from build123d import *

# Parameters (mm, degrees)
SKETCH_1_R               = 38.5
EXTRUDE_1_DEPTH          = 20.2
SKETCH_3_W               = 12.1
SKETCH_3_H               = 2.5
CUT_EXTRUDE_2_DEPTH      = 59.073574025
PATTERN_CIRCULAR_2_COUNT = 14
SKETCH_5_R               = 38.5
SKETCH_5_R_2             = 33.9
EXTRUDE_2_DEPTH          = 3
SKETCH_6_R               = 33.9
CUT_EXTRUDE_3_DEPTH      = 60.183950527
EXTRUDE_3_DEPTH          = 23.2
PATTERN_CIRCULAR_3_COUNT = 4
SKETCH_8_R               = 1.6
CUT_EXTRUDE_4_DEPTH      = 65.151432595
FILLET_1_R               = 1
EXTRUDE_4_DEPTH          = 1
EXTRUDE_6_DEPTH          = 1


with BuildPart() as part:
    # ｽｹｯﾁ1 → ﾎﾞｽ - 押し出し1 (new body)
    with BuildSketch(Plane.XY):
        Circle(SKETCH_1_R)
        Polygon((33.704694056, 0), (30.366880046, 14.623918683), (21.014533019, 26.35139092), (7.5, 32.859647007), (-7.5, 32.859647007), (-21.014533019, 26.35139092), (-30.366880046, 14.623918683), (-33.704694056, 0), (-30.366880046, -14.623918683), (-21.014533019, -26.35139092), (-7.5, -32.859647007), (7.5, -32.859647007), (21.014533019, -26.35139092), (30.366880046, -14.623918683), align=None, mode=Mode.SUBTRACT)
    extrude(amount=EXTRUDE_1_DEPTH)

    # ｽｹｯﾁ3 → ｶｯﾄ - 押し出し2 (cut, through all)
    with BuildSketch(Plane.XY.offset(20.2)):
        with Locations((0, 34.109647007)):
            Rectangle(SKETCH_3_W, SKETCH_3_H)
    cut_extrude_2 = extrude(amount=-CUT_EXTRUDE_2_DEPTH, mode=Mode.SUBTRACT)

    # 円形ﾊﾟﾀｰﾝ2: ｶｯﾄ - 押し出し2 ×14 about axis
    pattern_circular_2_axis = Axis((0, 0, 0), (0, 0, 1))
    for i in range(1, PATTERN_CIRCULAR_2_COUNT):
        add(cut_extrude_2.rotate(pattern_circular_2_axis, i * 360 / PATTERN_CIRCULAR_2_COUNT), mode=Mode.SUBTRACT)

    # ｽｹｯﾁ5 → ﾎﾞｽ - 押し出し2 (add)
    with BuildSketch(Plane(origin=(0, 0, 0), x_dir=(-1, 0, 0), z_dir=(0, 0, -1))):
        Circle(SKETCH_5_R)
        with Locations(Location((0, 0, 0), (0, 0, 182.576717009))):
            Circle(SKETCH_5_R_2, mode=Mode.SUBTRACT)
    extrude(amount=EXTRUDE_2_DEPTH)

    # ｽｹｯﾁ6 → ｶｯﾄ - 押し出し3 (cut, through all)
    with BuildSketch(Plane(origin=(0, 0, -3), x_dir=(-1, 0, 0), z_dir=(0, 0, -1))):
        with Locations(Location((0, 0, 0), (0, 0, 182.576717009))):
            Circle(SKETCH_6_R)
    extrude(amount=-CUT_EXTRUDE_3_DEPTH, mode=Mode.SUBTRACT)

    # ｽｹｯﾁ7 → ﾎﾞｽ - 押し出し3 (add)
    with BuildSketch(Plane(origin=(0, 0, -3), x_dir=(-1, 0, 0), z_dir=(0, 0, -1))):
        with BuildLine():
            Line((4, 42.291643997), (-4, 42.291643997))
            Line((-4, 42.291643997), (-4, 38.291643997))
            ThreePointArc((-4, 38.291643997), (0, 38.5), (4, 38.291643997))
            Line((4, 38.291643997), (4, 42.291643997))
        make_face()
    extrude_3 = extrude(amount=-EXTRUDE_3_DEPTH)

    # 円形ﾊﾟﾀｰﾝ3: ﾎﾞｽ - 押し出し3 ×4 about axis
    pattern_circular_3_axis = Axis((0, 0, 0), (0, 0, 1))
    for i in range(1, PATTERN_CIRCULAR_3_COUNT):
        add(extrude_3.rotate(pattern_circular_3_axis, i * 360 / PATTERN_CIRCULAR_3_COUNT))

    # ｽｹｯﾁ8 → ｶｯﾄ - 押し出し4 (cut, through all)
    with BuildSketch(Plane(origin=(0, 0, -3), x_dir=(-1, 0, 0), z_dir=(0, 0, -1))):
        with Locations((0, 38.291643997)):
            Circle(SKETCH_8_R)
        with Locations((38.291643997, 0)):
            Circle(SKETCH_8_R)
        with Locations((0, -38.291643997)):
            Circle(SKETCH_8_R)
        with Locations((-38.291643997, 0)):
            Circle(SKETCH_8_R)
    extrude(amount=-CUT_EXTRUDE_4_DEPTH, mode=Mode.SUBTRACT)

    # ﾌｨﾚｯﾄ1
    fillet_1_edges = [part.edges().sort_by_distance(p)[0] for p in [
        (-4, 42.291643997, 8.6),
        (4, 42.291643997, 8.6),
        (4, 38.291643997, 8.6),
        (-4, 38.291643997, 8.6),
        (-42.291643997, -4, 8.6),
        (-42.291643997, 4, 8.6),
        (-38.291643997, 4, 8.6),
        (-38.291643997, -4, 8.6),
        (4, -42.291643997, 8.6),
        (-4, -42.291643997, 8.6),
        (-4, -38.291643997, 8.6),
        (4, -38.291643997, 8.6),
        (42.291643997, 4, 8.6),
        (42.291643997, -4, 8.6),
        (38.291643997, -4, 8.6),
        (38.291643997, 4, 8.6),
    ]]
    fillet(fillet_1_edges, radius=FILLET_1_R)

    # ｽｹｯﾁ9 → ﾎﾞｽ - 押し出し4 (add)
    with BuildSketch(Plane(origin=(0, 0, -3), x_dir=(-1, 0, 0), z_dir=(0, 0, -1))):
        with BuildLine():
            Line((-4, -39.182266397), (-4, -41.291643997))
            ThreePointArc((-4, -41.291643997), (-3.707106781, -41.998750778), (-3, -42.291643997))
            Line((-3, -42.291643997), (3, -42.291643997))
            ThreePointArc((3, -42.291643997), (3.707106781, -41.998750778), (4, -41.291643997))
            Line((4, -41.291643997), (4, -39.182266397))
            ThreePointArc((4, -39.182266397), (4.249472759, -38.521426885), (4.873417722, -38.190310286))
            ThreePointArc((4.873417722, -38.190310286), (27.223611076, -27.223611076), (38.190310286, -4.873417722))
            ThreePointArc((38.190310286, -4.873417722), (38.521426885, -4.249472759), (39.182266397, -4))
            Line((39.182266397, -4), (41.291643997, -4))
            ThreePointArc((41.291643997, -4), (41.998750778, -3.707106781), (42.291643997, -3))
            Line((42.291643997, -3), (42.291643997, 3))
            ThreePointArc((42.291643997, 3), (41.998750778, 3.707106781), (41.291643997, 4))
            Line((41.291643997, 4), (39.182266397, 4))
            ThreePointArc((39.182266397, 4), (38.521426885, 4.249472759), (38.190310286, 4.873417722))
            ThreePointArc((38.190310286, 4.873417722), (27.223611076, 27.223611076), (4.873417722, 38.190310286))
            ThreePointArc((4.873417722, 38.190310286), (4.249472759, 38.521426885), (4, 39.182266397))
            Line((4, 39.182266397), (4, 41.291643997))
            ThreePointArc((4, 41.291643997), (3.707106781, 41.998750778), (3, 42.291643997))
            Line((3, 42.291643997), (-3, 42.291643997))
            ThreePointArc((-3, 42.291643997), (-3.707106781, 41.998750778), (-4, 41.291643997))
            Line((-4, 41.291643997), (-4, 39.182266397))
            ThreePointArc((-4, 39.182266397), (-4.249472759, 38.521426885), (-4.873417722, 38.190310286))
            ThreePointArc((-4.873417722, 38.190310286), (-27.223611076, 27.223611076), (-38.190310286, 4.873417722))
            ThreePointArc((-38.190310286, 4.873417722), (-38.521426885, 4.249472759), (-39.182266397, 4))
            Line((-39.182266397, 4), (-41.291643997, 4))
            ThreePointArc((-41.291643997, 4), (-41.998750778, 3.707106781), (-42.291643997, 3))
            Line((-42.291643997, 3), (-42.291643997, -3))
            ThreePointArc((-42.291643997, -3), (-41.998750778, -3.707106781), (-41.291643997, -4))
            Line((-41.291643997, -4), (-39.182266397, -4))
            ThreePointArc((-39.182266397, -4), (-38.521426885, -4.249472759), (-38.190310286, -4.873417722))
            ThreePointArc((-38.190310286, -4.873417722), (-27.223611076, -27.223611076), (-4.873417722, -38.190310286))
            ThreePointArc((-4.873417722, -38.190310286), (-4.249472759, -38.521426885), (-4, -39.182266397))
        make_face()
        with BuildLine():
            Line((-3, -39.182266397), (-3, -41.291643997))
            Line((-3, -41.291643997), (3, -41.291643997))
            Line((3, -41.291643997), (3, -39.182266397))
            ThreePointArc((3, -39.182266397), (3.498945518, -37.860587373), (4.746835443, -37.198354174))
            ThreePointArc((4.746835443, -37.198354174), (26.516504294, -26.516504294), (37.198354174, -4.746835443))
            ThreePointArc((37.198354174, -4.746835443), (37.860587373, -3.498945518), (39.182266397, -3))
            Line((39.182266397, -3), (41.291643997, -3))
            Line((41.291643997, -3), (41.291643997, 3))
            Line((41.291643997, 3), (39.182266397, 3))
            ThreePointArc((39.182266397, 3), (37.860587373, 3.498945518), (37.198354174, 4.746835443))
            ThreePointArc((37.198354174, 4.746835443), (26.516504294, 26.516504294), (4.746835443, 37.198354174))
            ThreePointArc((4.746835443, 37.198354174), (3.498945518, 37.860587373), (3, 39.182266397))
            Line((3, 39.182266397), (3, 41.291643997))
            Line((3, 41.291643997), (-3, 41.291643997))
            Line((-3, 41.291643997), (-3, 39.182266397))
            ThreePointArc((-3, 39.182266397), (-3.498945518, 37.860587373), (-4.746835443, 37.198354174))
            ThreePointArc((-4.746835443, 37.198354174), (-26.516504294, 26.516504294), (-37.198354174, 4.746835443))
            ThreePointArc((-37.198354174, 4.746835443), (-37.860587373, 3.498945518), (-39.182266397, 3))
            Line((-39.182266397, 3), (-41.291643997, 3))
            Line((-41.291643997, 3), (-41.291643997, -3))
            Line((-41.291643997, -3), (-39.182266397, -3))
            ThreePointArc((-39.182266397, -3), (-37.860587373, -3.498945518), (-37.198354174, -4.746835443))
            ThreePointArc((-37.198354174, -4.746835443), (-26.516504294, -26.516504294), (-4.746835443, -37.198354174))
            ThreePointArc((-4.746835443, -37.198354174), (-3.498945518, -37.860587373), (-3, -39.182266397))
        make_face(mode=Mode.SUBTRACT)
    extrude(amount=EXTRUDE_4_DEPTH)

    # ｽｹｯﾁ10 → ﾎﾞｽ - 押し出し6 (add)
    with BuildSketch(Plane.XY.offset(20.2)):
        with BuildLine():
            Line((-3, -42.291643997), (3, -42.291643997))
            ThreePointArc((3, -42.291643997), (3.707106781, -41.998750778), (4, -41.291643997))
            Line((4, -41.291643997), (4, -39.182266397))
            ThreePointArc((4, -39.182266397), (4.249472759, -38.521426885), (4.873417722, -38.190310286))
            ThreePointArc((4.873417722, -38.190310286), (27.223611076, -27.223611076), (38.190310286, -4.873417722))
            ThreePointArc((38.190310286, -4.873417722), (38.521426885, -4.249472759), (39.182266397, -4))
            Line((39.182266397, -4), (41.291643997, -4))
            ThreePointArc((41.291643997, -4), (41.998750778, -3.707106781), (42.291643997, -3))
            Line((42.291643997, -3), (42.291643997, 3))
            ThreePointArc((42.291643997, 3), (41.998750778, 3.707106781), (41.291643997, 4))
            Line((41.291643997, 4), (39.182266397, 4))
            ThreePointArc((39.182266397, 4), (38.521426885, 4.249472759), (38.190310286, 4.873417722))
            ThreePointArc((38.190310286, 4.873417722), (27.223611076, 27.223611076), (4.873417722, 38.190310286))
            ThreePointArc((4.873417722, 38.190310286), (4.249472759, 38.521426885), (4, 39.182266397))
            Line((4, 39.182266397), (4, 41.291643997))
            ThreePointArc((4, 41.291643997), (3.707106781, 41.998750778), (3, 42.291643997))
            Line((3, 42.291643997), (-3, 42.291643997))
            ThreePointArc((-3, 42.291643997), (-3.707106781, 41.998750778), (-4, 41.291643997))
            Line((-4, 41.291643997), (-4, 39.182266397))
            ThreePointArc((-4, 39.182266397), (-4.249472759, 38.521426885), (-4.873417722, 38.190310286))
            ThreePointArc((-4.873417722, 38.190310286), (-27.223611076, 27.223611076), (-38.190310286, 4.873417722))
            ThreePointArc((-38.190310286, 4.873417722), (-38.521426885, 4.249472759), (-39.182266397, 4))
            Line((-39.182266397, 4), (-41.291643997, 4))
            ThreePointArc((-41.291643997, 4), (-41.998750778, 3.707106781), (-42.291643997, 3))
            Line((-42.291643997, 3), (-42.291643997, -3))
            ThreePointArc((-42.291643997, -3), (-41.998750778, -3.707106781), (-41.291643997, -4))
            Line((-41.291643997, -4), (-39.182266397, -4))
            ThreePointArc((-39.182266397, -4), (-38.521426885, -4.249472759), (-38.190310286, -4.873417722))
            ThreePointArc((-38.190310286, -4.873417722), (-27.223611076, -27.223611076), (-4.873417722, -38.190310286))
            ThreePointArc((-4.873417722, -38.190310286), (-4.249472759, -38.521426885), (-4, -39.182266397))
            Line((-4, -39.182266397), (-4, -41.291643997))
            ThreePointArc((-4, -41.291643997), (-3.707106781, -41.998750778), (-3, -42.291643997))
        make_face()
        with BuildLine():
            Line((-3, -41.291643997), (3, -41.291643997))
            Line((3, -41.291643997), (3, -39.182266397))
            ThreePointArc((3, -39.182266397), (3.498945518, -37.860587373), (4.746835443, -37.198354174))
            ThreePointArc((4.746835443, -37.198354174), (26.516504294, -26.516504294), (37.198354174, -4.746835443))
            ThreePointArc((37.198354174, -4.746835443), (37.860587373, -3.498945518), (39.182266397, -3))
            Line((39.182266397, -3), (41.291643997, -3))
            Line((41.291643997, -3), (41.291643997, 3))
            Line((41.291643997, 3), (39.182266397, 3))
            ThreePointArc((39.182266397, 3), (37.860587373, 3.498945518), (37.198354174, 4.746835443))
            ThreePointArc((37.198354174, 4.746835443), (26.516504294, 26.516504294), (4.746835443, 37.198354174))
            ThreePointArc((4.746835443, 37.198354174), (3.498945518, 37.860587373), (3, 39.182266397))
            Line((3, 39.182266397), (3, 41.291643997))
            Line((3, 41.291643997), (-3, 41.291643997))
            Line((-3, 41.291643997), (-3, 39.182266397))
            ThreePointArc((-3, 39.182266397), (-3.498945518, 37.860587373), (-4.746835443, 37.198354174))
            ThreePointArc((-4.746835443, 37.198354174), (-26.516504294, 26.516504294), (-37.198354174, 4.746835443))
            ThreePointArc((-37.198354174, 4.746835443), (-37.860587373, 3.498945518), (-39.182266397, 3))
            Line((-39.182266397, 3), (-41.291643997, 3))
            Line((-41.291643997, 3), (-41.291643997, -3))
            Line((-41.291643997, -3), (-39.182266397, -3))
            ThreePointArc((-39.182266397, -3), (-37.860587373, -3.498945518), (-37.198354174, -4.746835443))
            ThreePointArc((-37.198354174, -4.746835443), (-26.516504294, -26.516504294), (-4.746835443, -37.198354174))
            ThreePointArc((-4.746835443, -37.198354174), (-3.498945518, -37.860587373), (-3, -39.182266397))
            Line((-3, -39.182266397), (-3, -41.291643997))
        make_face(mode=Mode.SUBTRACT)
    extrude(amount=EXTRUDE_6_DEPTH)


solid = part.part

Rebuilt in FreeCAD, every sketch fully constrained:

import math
import FreeCAD as App
import Part
import Sketcher

V = App.Vector
Q = App.Units.Quantity


def edges_at(feature, points):
    """Names of the edges that pass closest to the given points."""
    edges = feature.Shape.Edges
    near = lambda p: min(range(len(edges)), key=lambda i: edges[i].distToShape(Part.Vertex(*p))[0])
    return sorted({f"Edge{near(p) + 1}" for p in points})

doc = App.newDocument("Part")
body = doc.addObject("PartDesign::Body", "Body")

# Sketch on XY plane
sketch1 = body.newObject("Sketcher::SketchObject", "Sketch")
sketch1.AttachmentSupport = (doc.getObject("XY_Plane"), [""])
sketch1.MapMode = "FlatFace"
sketch1.addGeometry([
    Part.Circle(V(0, 0, 0), V(0, 0, 1), 38),  # 0
    Part.LineSegment(V(30, 15, 0), V(34, 0, 0)),  # 1
    Part.LineSegment(V(34, 0, 0), V(30, -15, 0)),  # 2
    Part.LineSegment(V(30, -15, 0), V(21, -26, 0)),  # 3
    Part.LineSegment(V(21, -26, 0), V(8, -33, 0)),  # 4
    Part.LineSegment(V(8, -33, 0), V(-8, -33, 0)),  # 5
    Part.LineSegment(V(-8, -33, 0), V(-21, -26, 0)),  # 6
    Part.LineSegment(V(-21, -26, 0), V(-30, -15, 0)),  # 7
    Part.LineSegment(V(-30, -15, 0), V(-34, 0, 0)),  # 8
    Part.LineSegment(V(-34, 0, 0), V(-30, 15, 0)),  # 9
    Part.LineSegment(V(-30, 15, 0), V(-21, 26, 0)),  # 10
    Part.LineSegment(V(-21, 26, 0), V(-8, 33, 0)),  # 11
    Part.LineSegment(V(-8, 33, 0), V(8, 33, 0)),  # 12
    Part.LineSegment(V(8, 33, 0), V(21, 26, 0)),  # 13
    Part.LineSegment(V(21, 26, 0), V(30, 15, 0)),  # 14
], False)
sketch1.addConstraint([
    Sketcher.Constraint("Coincident", 1, 2, 2, 1),
    Sketcher.Constraint("Coincident", 2, 2, 3, 1),
    Sketcher.Constraint("Coincident", 3, 2, 4, 1),
    Sketcher.Constraint("Coincident", 4, 2, 5, 1),
    Sketcher.Constraint("Coincident", 5, 2, 6, 1),
    Sketcher.Constraint("Coincident", 6, 2, 7, 1),
    Sketcher.Constraint("Coincident", 7, 2, 8, 1),
    Sketcher.Constraint("Coincident", 8, 2, 9, 1),
    Sketcher.Constraint("Coincident", 9, 2, 10, 1),
    Sketcher.Constraint("Coincident", 10, 2, 11, 1),
    Sketcher.Constraint("Coincident", 11, 2, 12, 1),
    Sketcher.Constraint("Coincident", 12, 2, 13, 1),
    Sketcher.Constraint("Coincident", 13, 2, 14, 1),
    Sketcher.Constraint("Coincident", 14, 2, 1, 1),
    Sketcher.Constraint("Horizontal", 5),
    Sketcher.Constraint("Horizontal", 12),
    Sketcher.Constraint("Coincident", 0, 3, -1, 1),
    Sketcher.Constraint("Symmetric", 1, 2, 8, 2, -1, 1),
    Sketcher.Constraint("Symmetric", 2, 2, 9, 2, -1, 1),
    Sketcher.Constraint("Symmetric", 3, 2, 10, 2, -1, 1),
    Sketcher.Constraint("Symmetric", 4, 2, 11, 2, -1, 1),
    Sketcher.Constraint("Symmetric", 6, 2, 13, 2, -1, 1),
    Sketcher.Constraint("Symmetric", 7, 2, 14, 2, -1, 1),
    Sketcher.Constraint("Symmetric", 3, 2, 6, 2, -2),
    Sketcher.Constraint("Symmetric", 2, 2, 7, 2, -2),
    Sketcher.Constraint("PointOnObject", 1, 2, -1),
    Sketcher.Constraint("Parallel", 6, 13),
    Sketcher.Constraint("Vertical", 5, 2, 11, 2),
    Sketcher.Constraint("Equal", 2, 3),
    Sketcher.Constraint("Equal", 3, 4),
    Sketcher.Constraint("Diameter", 0, Q("77 mm")),
    Sketcher.Constraint("DistanceX", 5, 2, 5, 1, Q("15 mm")),
    Sketcher.Constraint("Distance", 1, Q("15 mm")),
    Sketcher.Constraint("DistanceX", -1, 1, 2, 2, Q("30.36688 mm")),
    Sketcher.Constraint("DistanceY", 2, 2, -1, 1, Q("14.623919 mm")),
    Sketcher.Constraint("DistanceY", 3, 2, -1, 1, Q("26.351391 mm")),
])
pad1 = body.newObject("PartDesign::Pad", "Pad")
pad1.Profile = sketch1
pad1.Length = 20.2

# Sketch on XY plane
sketch2 = body.newObject("Sketcher::SketchObject", "Sketch001")
sketch2.AttachmentSupport = (doc.getObject("XY_Plane"), [""])
sketch2.MapMode = "FlatFace"
sketch2.AttachmentOffset = App.Placement(V(0, 0, 20.2), App.Rotation())
sketch2.addGeometry([
    Part.LineSegment(V(-6, 35.4, 0), V(-6, 32.9, 0)),
    Part.LineSegment(V(-6, 32.9, 0), V(6, 32.9, 0)),
    Part.LineSegment(V(6, 32.9, 0), V(6, 35.4, 0)),
    Part.LineSegment(V(6, 35.4, 0), V(-6, 35.4, 0)),
], False)
sketch2.addConstraint([
    Sketcher.Constraint("Coincident", 0, 2, 1, 1),
    Sketcher.Constraint("Coincident", 1, 2, 2, 1),
    Sketcher.Constraint("Coincident", 2, 2, 3, 1),
    Sketcher.Constraint("Coincident", 3, 2, 0, 1),
    Sketcher.Constraint("Vertical", 0),
    Sketcher.Constraint("Horizontal", 1),
    Sketcher.Constraint("Vertical", 2),
    Sketcher.Constraint("Horizontal", 3),
    Sketcher.Constraint("DistanceX", 1, 1, 1, 2, Q("12.1 mm")),
    Sketcher.Constraint("DistanceY", 0, 2, 0, 1, Q("2.5 mm")),
    Sketcher.Constraint("DistanceX", 0, 2, -1, 1, Q("6.05 mm")),
    Sketcher.Constraint("DistanceY", -1, 1, 0, 2, Q("32.859647 mm")),
])
pocket1 = body.newObject("PartDesign::Pocket", "Pocket")
pocket1.Profile = sketch2
pocket1.Type = "ThroughAll"
doc.recompute()

polarpattern = body.newObject("PartDesign::PolarPattern", "PolarPattern")
polarpattern.Originals = [pocket1]
polarpattern.Axis = (doc.getObject("Z_Axis"), [""])
polarpattern.Angle = 360
polarpattern.Occurrences = 14
body.Tip = polarpattern

# Sketch on XY plane
sketch3 = body.newObject("Sketcher::SketchObject", "Sketch002")
sketch3.AttachmentSupport = (doc.getObject("XY_Plane"), [""])
sketch3.MapMode = "FlatFace"
sketch3.addGeometry([
    Part.Circle(V(0, 0, 0), V(0, 0, 1), 38),
    Part.Circle(V(0, 0, 0), V(0, 0, 1), 34),
], False)
sketch3.addConstraint([
    Sketcher.Constraint("Coincident", 0, 3, -1, 1),
    Sketcher.Constraint("Coincident", 1, 3, -1, 1),
    Sketcher.Constraint("Diameter", 0, Q("77 mm")),
    Sketcher.Constraint("Diameter", 1, Q("67.8 mm")),
])
pad2 = body.newObject("PartDesign::Pad", "Pad001")
pad2.Profile = sketch3
pad2.Length = 3
pad2.Reversed = True

# Sketch on XY plane
sketch4 = body.newObject("Sketcher::SketchObject", "Sketch003")
sketch4.AttachmentSupport = (doc.getObject("XY_Plane"), [""])
sketch4.MapMode = "FlatFace"
sketch4.AttachmentOffset = App.Placement(V(0, 0, -3), App.Rotation())
sketch4.addGeometry(Part.Circle(V(0, 0, 0), V(0, 0, 1), 34), False)
sketch4.addConstraint([
    Sketcher.Constraint("Coincident", 0, 3, -1, 1),
    Sketcher.Constraint("Diameter", 0, Q("67.8 mm")),
])
pocket2 = body.newObject("PartDesign::Pocket", "Pocket001")
pocket2.Profile = sketch4
pocket2.Type = "ThroughAll"
pocket2.Reversed = True

# Sketch on XY plane
sketch5 = body.newObject("Sketcher::SketchObject", "Sketch004")
sketch5.AttachmentSupport = (doc.getObject("XY_Plane"), [""])
sketch5.MapMode = "FlatFace"
sketch5.AttachmentOffset = App.Placement(V(0, 0, -3), App.Rotation())
sketch5.addGeometry([
    Part.LineSegment(V(-4, 42.3, 0), V(4, 42.3, 0)),
    Part.LineSegment(V(4, 42.3, 0), V(4, 38.3, 0)),
    Part.ArcOfCircle(Part.Circle(V(0, 0, 0), V(0, 0, 1), 38.5), math.radians(84.04), math.radians(95.96)),
    Part.LineSegment(V(-4, 38.3, 0), V(-4, 42.3, 0)),
], False)
sketch5.addConstraint([
    Sketcher.Constraint("Coincident", 0, 2, 1, 1),
    Sketcher.Constraint("Coincident", 1, 2, 2, 1),
    Sketcher.Constraint("Coincident", 2, 2, 3, 1),
    Sketcher.Constraint("Coincident", 3, 2, 0, 1),
    Sketcher.Constraint("Horizontal", 0),
    Sketcher.Constraint("Vertical", 1),
    Sketcher.Constraint("Vertical", 3),
    Sketcher.Constraint("Coincident", 2, 3, -1, 1),
    Sketcher.Constraint("Horizontal", 1, 2, 2, 2),
    Sketcher.Constraint("Radius", 2, Q("38.5 mm")),
    Sketcher.Constraint("DistanceX", 0, 1, 0, 2, Q("8 mm")),
    Sketcher.Constraint("DistanceY", 1, 2, 1, 1, Q("4 mm")),
])
pad3 = body.newObject("PartDesign::Pad", "Pad002")
pad3.Profile = sketch5
pad3.Length = 23.2
doc.recompute()

polarpattern2 = body.newObject("PartDesign::PolarPattern", "PolarPattern001")
polarpattern2.Originals = [pad3]
polarpattern2.Axis = (doc.getObject("Z_Axis"), [""])
polarpattern2.Angle = 360
polarpattern2.Occurrences = 4
body.Tip = polarpattern2

# Sketch on XY plane
sketch6 = body.newObject("Sketcher::SketchObject", "Sketch005")
sketch6.AttachmentSupport = (doc.getObject("XY_Plane"), [""])
sketch6.MapMode = "FlatFace"
sketch6.AttachmentOffset = App.Placement(V(0, 0, -3), App.Rotation())
sketch6.addGeometry([
    Part.Circle(V(0, 38.3, 0), V(0, 0, 1), 1.6),
    Part.Circle(V(-38.3, 0, 0), V(0, 0, 1), 1.6),
    Part.Circle(V(0, -38.3, 0), V(0, 0, 1), 1.6),
    Part.Circle(V(38.3, 0, 0), V(0, 0, 1), 1.6),
], False)
sketch6.addConstraint([
    Sketcher.Constraint("Equal", 0, 1),
    Sketcher.Constraint("Equal", 1, 2),
    Sketcher.Constraint("Equal", 2, 3),
    Sketcher.Constraint("Symmetric", 0, 3, 2, 3, -1, 1),
    Sketcher.Constraint("Symmetric", 1, 3, 3, 3, -1, 1),
    Sketcher.Constraint("PointOnObject", 0, 3, -2),
    Sketcher.Constraint("PointOnObject", 1, 3, -1),
    Sketcher.Constraint("Diameter", 0, Q("3.2 mm")),
    Sketcher.Constraint("DistanceY", -1, 1, 0, 3, Q("38.291644 mm")),
    Sketcher.Constraint("DistanceX", 1, 3, -1, 1, Q("38.291644 mm")),
])
pocket3 = body.newObject("PartDesign::Pocket", "Pocket002")
pocket3.Profile = sketch6
pocket3.Type = "ThroughAll"
pocket3.Reversed = True
doc.recompute()

fillet = body.newObject("PartDesign::Fillet", "Fillet")
fillet.Base = (pocket3, edges_at(pocket3, [
    (-4, 42.292, 8.6),
    (4, 42.292, 8.6),
    (4, 38.292, 8.6),
    (-4, 38.292, 8.6),
    (-42.292, -4, 8.6),
    (-42.292, 4, 8.6),
    (-38.292, 4, 8.6),
    (-38.292, -4, 8.6),
    (4, -42.292, 8.6),
    (-4, -42.292, 8.6),
    (-4, -38.292, 8.6),
    (4, -38.292, 8.6),
    (42.292, 4, 8.6),
    (42.292, -4, 8.6),
    (38.292, -4, 8.6),
    (38.292, 4, 8.6),
]))
fillet.Radius = 1

# Sketch on XY plane
sketch7 = body.newObject("Sketcher::SketchObject", "Sketch006")
sketch7.AttachmentSupport = (doc.getObject("XY_Plane"), [""])
sketch7.MapMode = "FlatFace"
sketch7.AttachmentOffset = App.Placement(V(0, 0, -3), App.Rotation())
sketch7.addGeometry([
    Part.LineSegment(V(4, -39.2, 0), V(4, -41.3, 0)),  # 0
    Part.ArcOfCircle(Part.Circle(V(3, -41.3, 0), V(0, 0, 1), 1), math.radians(-90), math.radians(0)),  # 1
    Part.LineSegment(V(3, -42.3, 0), V(-3, -42.3, 0)),  # 2
    Part.ArcOfCircle(Part.Circle(V(-3, -41.3, 0), V(0, 0, 1), 1), math.radians(-180), math.radians(-90)),  # 3
    Part.LineSegment(V(-4, -41.3, 0), V(-4, -39.2, 0)),  # 4
    Part.ArcOfCircle(Part.Circle(V(-5, -39.2, 0), V(0, 0, 1), 1), math.radians(0), math.radians(83)),  # 5
    Part.ArcOfCircle(Part.Circle(V(0, 0, 0), V(0, 0, 1), 38.5), math.radians(-173), math.radians(-97)),  # 6
    Part.ArcOfCircle(Part.Circle(V(-39.2, -5, 0), V(0, 0, 1), 1), math.radians(7), math.radians(90)),  # 7
    Part.LineSegment(V(-39.2, -4, 0), V(-41.3, -4, 0)),  # 8
    Part.ArcOfCircle(Part.Circle(V(-41.3, -3, 0), V(0, 0, 1), 1), math.radians(-180), math.radians(-90)),  # 9
    Part.LineSegment(V(-42.3, -3, 0), V(-42.3, 3, 0)),  # 10
    Part.ArcOfCircle(Part.Circle(V(-41.3, 3, 0), V(0, 0, 1), 1), math.radians(90), math.radians(180)),  # 11
    Part.LineSegment(V(-41.3, 4, 0), V(-39.2, 4, 0)),  # 12
    Part.ArcOfCircle(Part.Circle(V(-39.2, 5, 0), V(0, 0, 1), 1), math.radians(-90), math.radians(-7)),  # 13
    Part.ArcOfCircle(Part.Circle(V(0, 0, 0), V(0, 0, 1), 38.5), math.radians(97), math.radians(173)),  # 14
    Part.ArcOfCircle(Part.Circle(V(-5, 39.2, 0), V(0, 0, 1), 1), math.radians(-83), math.radians(0)),  # 15
    Part.LineSegment(V(-4, 39.2, 0), V(-4, 41.3, 0)),  # 16
    Part.ArcOfCircle(Part.Circle(V(-3, 41.3, 0), V(0, 0, 1), 1), math.radians(90), math.radians(180)),  # 17
    Part.LineSegment(V(-3, 42.3, 0), V(3, 42.3, 0)),  # 18
    Part.ArcOfCircle(Part.Circle(V(3, 41.3, 0), V(0, 0, 1), 1), math.radians(0), math.radians(90)),  # 19
    Part.LineSegment(V(4, 41.3, 0), V(4, 39.2, 0)),  # 20
    Part.ArcOfCircle(Part.Circle(V(5, 39.2, 0), V(0, 0, 1), 1), math.radians(180), math.radians(263)),  # 21
    Part.ArcOfCircle(Part.Circle(V(0, 0, 0), V(0, 0, 1), 38.5), math.radians(7), math.radians(83)),  # 22
    Part.ArcOfCircle(Part.Circle(V(39.2, 5, 0), V(0, 0, 1), 1), math.radians(-173), math.radians(-90)),  # 23
    Part.LineSegment(V(39.2, 4, 0), V(41.3, 4, 0)),  # 24
    Part.ArcOfCircle(Part.Circle(V(41.3, 3, 0), V(0, 0, 1), 1), math.radians(0), math.radians(90)),  # 25
    Part.LineSegment(V(42.3, 3, 0), V(42.3, -3, 0)),  # 26
    Part.ArcOfCircle(Part.Circle(V(41.3, -3, 0), V(0, 0, 1), 1), math.radians(-90), math.radians(0)),  # 27
    Part.LineSegment(V(41.3, -4, 0), V(39.2, -4, 0)),  # 28
    Part.ArcOfCircle(Part.Circle(V(39.2, -5, 0), V(0, 0, 1), 1), math.radians(90), math.radians(173)),  # 29
    Part.ArcOfCircle(Part.Circle(V(0, 0, 0), V(0, 0, 1), 38.5), math.radians(-83), math.radians(-7)),  # 30
    Part.ArcOfCircle(Part.Circle(V(5, -39.2, 0), V(0, 0, 1), 1), math.radians(97), math.radians(180)),  # 31
    Part.LineSegment(V(3, -41.3, 0), V(3, -39.2, 0)),  # 32
    Part.ArcOfCircle(Part.Circle(V(5, -39.2, 0), V(0, 0, 1), 2), math.radians(97), math.radians(180)),  # 33
    Part.ArcOfCircle(Part.Circle(V(0, 0, 0), V(0, 0, 1), 37.5), math.radians(-83), math.radians(-7)),  # 34
    Part.ArcOfCircle(Part.Circle(V(39.2, -5, 0), V(0, 0, 1), 2), math.radians(90), math.radians(173)),  # 35
    Part.LineSegment(V(39.2, -3, 0), V(41.3, -3, 0)),  # 36
    Part.LineSegment(V(41.3, -3, 0), V(41.3, 3, 0)),  # 37
    Part.LineSegment(V(41.3, 3, 0), V(39.2, 3, 0)),  # 38
    Part.ArcOfCircle(Part.Circle(V(39.2, 5, 0), V(0, 0, 1), 2), math.radians(-173), math.radians(-90)),  # 39
    Part.ArcOfCircle(Part.Circle(V(0, 0, 0), V(0, 0, 1), 37.5), math.radians(7), math.radians(83)),  # 40
    Part.ArcOfCircle(Part.Circle(V(5, 39.2, 0), V(0, 0, 1), 2), math.radians(180), math.radians(263)),  # 41
    Part.LineSegment(V(3, 39.2, 0), V(3, 41.3, 0)),  # 42
    Part.LineSegment(V(3, 41.3, 0), V(-3, 41.3, 0)),  # 43
    Part.LineSegment(V(-3, 41.3, 0), V(-3, 39.2, 0)),  # 44
    Part.ArcOfCircle(Part.Circle(V(-5, 39.2, 0), V(0, 0, 1), 2), math.radians(-83), math.radians(0)),  # 45
    Part.ArcOfCircle(Part.Circle(V(0, 0, 0), V(0, 0, 1), 37.5), math.radians(97), math.radians(173)),  # 46
    Part.ArcOfCircle(Part.Circle(V(-39.2, 5, 0), V(0, 0, 1), 2), math.radians(-90), math.radians(-7)),  # 47
    Part.LineSegment(V(-39.2, 3, 0), V(-41.3, 3, 0)),  # 48
    Part.LineSegment(V(-41.3, 3, 0), V(-41.3, -3, 0)),  # 49
    Part.LineSegment(V(-41.3, -3, 0), V(-39.2, -3, 0)),  # 50
    Part.ArcOfCircle(Part.Circle(V(-39.2, -5, 0), V(0, 0, 1), 2), math.radians(7), math.radians(90)),  # 51
    Part.ArcOfCircle(Part.Circle(V(0, 0, 0), V(0, 0, 1), 37.5), math.radians(-173), math.radians(-97)),  # 52
    Part.ArcOfCircle(Part.Circle(V(-5, -39.2, 0), V(0, 0, 1), 2), math.radians(0), math.radians(83)),  # 53
    Part.LineSegment(V(-3, -39.2, 0), V(-3, -41.3, 0)),  # 54
    Part.LineSegment(V(-3, -41.3, 0), V(3, -41.3, 0)),  # 55
], False)
sketch7.addConstraint([
    Sketcher.Constraint("Tangent", 0, 2, 1, 2),
    Sketcher.Constraint("Tangent", 1, 1, 2, 1),
    Sketcher.Constraint("Tangent", 2, 2, 3, 2),
    Sketcher.Constraint("Tangent", 3, 1, 4, 1),
    Sketcher.Constraint("Tangent", 4, 2, 5, 1),
    Sketcher.Constraint("Tangent", 5, 2, 6, 2),
    Sketcher.Constraint("Tangent", 6, 1, 7, 1),
    Sketcher.Constraint("Tangent", 7, 2, 8, 1),
    Sketcher.Constraint("Tangent", 8, 2, 9, 2),
    Sketcher.Constraint("Tangent", 9, 1, 10, 1),
    Sketcher.Constraint("Tangent", 10, 2, 11, 2),
    Sketcher.Constraint("Tangent", 11, 1, 12, 1),
    Sketcher.Constraint("Tangent", 12, 2, 13, 1),
    Sketcher.Constraint("Tangent", 13, 2, 14, 2),
    Sketcher.Constraint("Tangent", 14, 1, 15, 1),
    Sketcher.Constraint("Tangent", 15, 2, 16, 1),
    Sketcher.Constraint("Tangent", 16, 2, 17, 2),
    Sketcher.Constraint("Tangent", 17, 1, 18, 1),
    Sketcher.Constraint("Tangent", 18, 2, 19, 2),
    Sketcher.Constraint("Tangent", 19, 1, 20, 1),
    Sketcher.Constraint("Tangent", 20, 2, 21, 1),
    Sketcher.Constraint("Tangent", 21, 2, 22, 2),
    Sketcher.Constraint("Tangent", 22, 1, 23, 1),
    Sketcher.Constraint("Tangent", 23, 2, 24, 1),
    Sketcher.Constraint("Tangent", 24, 2, 25, 2),
    Sketcher.Constraint("Tangent", 25, 1, 26, 1),
    Sketcher.Constraint("Tangent", 26, 2, 27, 2),
    Sketcher.Constraint("Tangent", 27, 1, 28, 1),
    Sketcher.Constraint("Tangent", 28, 2, 29, 1),
    Sketcher.Constraint("Tangent", 29, 2, 30, 2),
    Sketcher.Constraint("Tangent", 30, 1, 31, 1),
    Sketcher.Constraint("Tangent", 31, 2, 0, 1),
    Sketcher.Constraint("Tangent", 32, 2, 33, 2),
    Sketcher.Constraint("Tangent", 33, 1, 34, 1),
    Sketcher.Constraint("Tangent", 34, 2, 35, 2),
    Sketcher.Constraint("Tangent", 35, 1, 36, 1),
    Sketcher.Constraint("Coincident", 36, 2, 37, 1),
    Sketcher.Constraint("Coincident", 37, 2, 38, 1),
    Sketcher.Constraint("Tangent", 38, 2, 39, 2),
    Sketcher.Constraint("Tangent", 39, 1, 40, 1),
    Sketcher.Constraint("Tangent", 40, 2, 41, 2),
    Sketcher.Constraint("Tangent", 41, 1, 42, 1),
    Sketcher.Constraint("Coincident", 42, 2, 43, 1),
    Sketcher.Constraint("Coincident", 43, 2, 44, 1),
    Sketcher.Constraint("Tangent", 44, 2, 45, 2),
    Sketcher.Constraint("Tangent", 45, 1, 46, 1),
    Sketcher.Constraint("Tangent", 46, 2, 47, 2),
    Sketcher.Constraint("Tangent", 47, 1, 48, 1),
    Sketcher.Constraint("Coincident", 48, 2, 49, 1),
    Sketcher.Constraint("Coincident", 49, 2, 50, 1),
    Sketcher.Constraint("Tangent", 50, 2, 51, 2),
    Sketcher.Constraint("Tangent", 51, 1, 52, 1),
    Sketcher.Constraint("Tangent", 52, 2, 53, 2),
    Sketcher.Constraint("Tangent", 53, 1, 54, 1),
    Sketcher.Constraint("Coincident", 54, 2, 55, 1),
    Sketcher.Constraint("Coincident", 55, 2, 32, 1),
    Sketcher.Constraint("Vertical", 0),
    Sketcher.Constraint("Horizontal", 2),
    Sketcher.Constraint("Vertical", 4),
    Sketcher.Constraint("Horizontal", 8),
    Sketcher.Constraint("Vertical", 10),
    Sketcher.Constraint("Horizontal", 12),
    Sketcher.Constraint("Vertical", 16),
    Sketcher.Constraint("Horizontal", 18),
    Sketcher.Constraint("Vertical", 20),
    Sketcher.Constraint("Horizontal", 24),
    Sketcher.Constraint("Vertical", 26),
    Sketcher.Constraint("Horizontal", 28),
    Sketcher.Constraint("Vertical", 32),
    Sketcher.Constraint("Horizontal", 36),
    Sketcher.Constraint("Vertical", 37),
    Sketcher.Constraint("Horizontal", 38),
    Sketcher.Constraint("Vertical", 42),
    Sketcher.Constraint("Horizontal", 43),
    Sketcher.Constraint("Vertical", 44),
    Sketcher.Constraint("Horizontal", 48),
    Sketcher.Constraint("Vertical", 49),
    Sketcher.Constraint("Horizontal", 50),
    Sketcher.Constraint("Vertical", 54),
    Sketcher.Constraint("Horizontal", 55),
    Sketcher.Constraint("Coincident", 6, 3, -1, 1),
    Sketcher.Constraint("Coincident", 14, 3, -1, 1),
    Sketcher.Constraint("Coincident", 22, 3, -1, 1),
    Sketcher.Constraint("Coincident", 30, 3, -1, 1),
    Sketcher.Constraint("Coincident", 34, 3, -1, 1),
    Sketcher.Constraint("Coincident", 40, 3, -1, 1),
    Sketcher.Constraint("Coincident", 46, 3, -1, 1),
    Sketcher.Constraint("Coincident", 52, 3, -1, 1),
    Sketcher.Constraint("Coincident", 33, 3, 31, 3),
    Sketcher.Constraint("Coincident", 35, 3, 29, 3),
    Sketcher.Constraint("Coincident", 39, 3, 23, 3),
    Sketcher.Constraint("Coincident", 41, 3, 21, 3),
    Sketcher.Constraint("Coincident", 45, 3, 15, 3),
    Sketcher.Constraint("Coincident", 47, 3, 13, 3),
    Sketcher.Constraint("Coincident", 51, 3, 7, 3),
    Sketcher.Constraint("Coincident", 53, 3, 5, 3),
    Sketcher.Constraint("Coincident", 36, 2, 27, 3),
    Sketcher.Constraint("Coincident", 37, 2, 25, 3),
    Sketcher.Constraint("Coincident", 42, 2, 19, 3),
    Sketcher.Constraint("Coincident", 43, 2, 17, 3),
    Sketcher.Constraint("Coincident", 48, 2, 11, 3),
    Sketcher.Constraint("Coincident", 49, 2, 9, 3),
    Sketcher.Constraint("Coincident", 54, 2, 3, 3),
    Sketcher.Constraint("Equal", 1, 3),
    Sketcher.Constraint("Equal", 3, 5),
    Sketcher.Constraint("Equal", 5, 7),
    Sketcher.Constraint("Equal", 11, 13),
    Sketcher.Constraint("Equal", 6, 14),
    Sketcher.Constraint("Equal", 13, 15),
    Sketcher.Constraint("Equal", 19, 21),
    Sketcher.Constraint("Equal", 14, 22),
    Sketcher.Constraint("Equal", 21, 23),
    Sketcher.Constraint("Equal", 27, 29),
    Sketcher.Constraint("Equal", 22, 30),
    Sketcher.Constraint("Equal", 29, 31),
    Sketcher.Constraint("Symmetric", 1, 3, 17, 3, -1, 1),
    Sketcher.Constraint("Symmetric", 9, 3, 25, 3, -1, 1),
    Sketcher.Constraint("Horizontal", 15, 3, 21, 3),
    Sketcher.Constraint("Horizontal", 13, 3, 23, 3),
    Sketcher.Constraint("Horizontal", 9, 3, 27, 3),
    Sketcher.Constraint("Horizontal", 5, 3, 31, 3),
    Sketcher.Constraint("Equal", 50, 0),
    Sketcher.Constraint("Equal", 55, 10),
    Sketcher.Constraint("Radius", 1, Q("1 mm")),
    Sketcher.Constraint("Radius", 6, Q("38.5 mm")),
    Sketcher.Constraint("DistanceX", 2, 2, 2, 1, Q("6 mm")),
    Sketcher.Constraint("DistanceX", 8, 2, 8, 1, Q("2.109378 mm")),
])
pad4 = body.newObject("PartDesign::Pad", "Pad003")
pad4.Profile = sketch7
pad4.Length = 1
pad4.Reversed = True

# Sketch on XY plane
sketch8 = body.newObject("Sketcher::SketchObject", "Sketch007")
sketch8.AttachmentSupport = (doc.getObject("XY_Plane"), [""])
sketch8.MapMode = "FlatFace"
sketch8.AttachmentOffset = App.Placement(V(0, 0, 20.2), App.Rotation())
sketch8.addGeometry([
    Part.LineSegment(V(-3, -42.3, 0), V(3, -42.3, 0)),  # 0
    Part.ArcOfCircle(Part.Circle(V(3, -41.3, 0), V(0, 0, 1), 1), math.radians(-90), math.radians(0)),  # 1
    Part.LineSegment(V(4, -41.3, 0), V(4, -39.2, 0)),  # 2
    Part.ArcOfCircle(Part.Circle(V(5, -39.2, 0), V(0, 0, 1), 1), math.radians(97), math.radians(180)),  # 3
    Part.ArcOfCircle(Part.Circle(V(0, 0, 0), V(0, 0, 1), 38.5), math.radians(-83), math.radians(-7)),  # 4
    Part.ArcOfCircle(Part.Circle(V(39.2, -5, 0), V(0, 0, 1), 1), math.radians(90), math.radians(173)),  # 5
    Part.LineSegment(V(39.2, -4, 0), V(41.3, -4, 0)),  # 6
    Part.ArcOfCircle(Part.Circle(V(41.3, -3, 0), V(0, 0, 1), 1), math.radians(-90), math.radians(0)),  # 7
    Part.LineSegment(V(42.3, -3, 0), V(42.3, 3, 0)),  # 8
    Part.ArcOfCircle(Part.Circle(V(41.3, 3, 0), V(0, 0, 1), 1), math.radians(0), math.radians(90)),  # 9
    Part.LineSegment(V(41.3, 4, 0), V(39.2, 4, 0)),  # 10
    Part.ArcOfCircle(Part.Circle(V(39.2, 5, 0), V(0, 0, 1), 1), math.radians(-173), math.radians(-90)),  # 11
    Part.ArcOfCircle(Part.Circle(V(0, 0, 0), V(0, 0, 1), 38.5), math.radians(7), math.radians(83)),  # 12
    Part.ArcOfCircle(Part.Circle(V(5, 39.2, 0), V(0, 0, 1), 1), math.radians(180), math.radians(263)),  # 13
    Part.LineSegment(V(4, 39.2, 0), V(4, 41.3, 0)),  # 14
    Part.ArcOfCircle(Part.Circle(V(3, 41.3, 0), V(0, 0, 1), 1), math.radians(0), math.radians(90)),  # 15
    Part.LineSegment(V(3, 42.3, 0), V(-3, 42.3, 0)),  # 16
    Part.ArcOfCircle(Part.Circle(V(-3, 41.3, 0), V(0, 0, 1), 1), math.radians(90), math.radians(180)),  # 17
    Part.LineSegment(V(-4, 41.3, 0), V(-4, 39.2, 0)),  # 18
    Part.ArcOfCircle(Part.Circle(V(-5, 39.2, 0), V(0, 0, 1), 1), math.radians(-83), math.radians(0)),  # 19
    Part.ArcOfCircle(Part.Circle(V(0, 0, 0), V(0, 0, 1), 38.5), math.radians(97), math.radians(173)),  # 20
    Part.ArcOfCircle(Part.Circle(V(-39.2, 5, 0), V(0, 0, 1), 1), math.radians(-90), math.radians(-7)),  # 21
    Part.LineSegment(V(-39.2, 4, 0), V(-41.3, 4, 0)),  # 22
    Part.ArcOfCircle(Part.Circle(V(-41.3, 3, 0), V(0, 0, 1), 1), math.radians(90), math.radians(180)),  # 23
    Part.LineSegment(V(-42.3, 3, 0), V(-42.3, -3, 0)),  # 24
    Part.ArcOfCircle(Part.Circle(V(-41.3, -3, 0), V(0, 0, 1), 1), math.radians(-180), math.radians(-90)),  # 25
    Part.LineSegment(V(-41.3, -4, 0), V(-39.2, -4, 0)),  # 26
    Part.ArcOfCircle(Part.Circle(V(-39.2, -5, 0), V(0, 0, 1), 1), math.radians(7), math.radians(90)),  # 27
    Part.ArcOfCircle(Part.Circle(V(0, 0, 0), V(0, 0, 1), 38.5), math.radians(-173), math.radians(-97)),  # 28
    Part.ArcOfCircle(Part.Circle(V(-5, -39.2, 0), V(0, 0, 1), 1), math.radians(0), math.radians(83)),  # 29
    Part.LineSegment(V(-4, -39.2, 0), V(-4, -41.3, 0)),  # 30
    Part.ArcOfCircle(Part.Circle(V(-3, -41.3, 0), V(0, 0, 1), 1), math.radians(-180), math.radians(-90)),  # 31
    Part.LineSegment(V(3, -41.3, 0), V(-3, -41.3, 0)),  # 32
    Part.LineSegment(V(-3, -41.3, 0), V(-3, -39.2, 0)),  # 33
    Part.ArcOfCircle(Part.Circle(V(-5, -39.2, 0), V(0, 0, 1), 2), math.radians(0), math.radians(83)),  # 34
    Part.ArcOfCircle(Part.Circle(V(0, 0, 0), V(0, 0, 1), 37.5), math.radians(-173), math.radians(-97)),  # 35
    Part.ArcOfCircle(Part.Circle(V(-39.2, -5, 0), V(0, 0, 1), 2), math.radians(7), math.radians(90)),  # 36
    Part.LineSegment(V(-39.2, -3, 0), V(-41.3, -3, 0)),  # 37
    Part.LineSegment(V(-41.3, -3, 0), V(-41.3, 3, 0)),  # 38
    Part.LineSegment(V(-41.3, 3, 0), V(-39.2, 3, 0)),  # 39
    Part.ArcOfCircle(Part.Circle(V(-39.2, 5, 0), V(0, 0, 1), 2), math.radians(-90), math.radians(-7)),  # 40
    Part.ArcOfCircle(Part.Circle(V(0, 0, 0), V(0, 0, 1), 37.5), math.radians(97), math.radians(173)),  # 41
    Part.ArcOfCircle(Part.Circle(V(-5, 39.2, 0), V(0, 0, 1), 2), math.radians(-83), math.radians(0)),  # 42
    Part.LineSegment(V(-3, 39.2, 0), V(-3, 41.3, 0)),  # 43
    Part.LineSegment(V(-3, 41.3, 0), V(3, 41.3, 0)),  # 44
    Part.LineSegment(V(3, 41.3, 0), V(3, 39.2, 0)),  # 45
    Part.ArcOfCircle(Part.Circle(V(5, 39.2, 0), V(0, 0, 1), 2), math.radians(180), math.radians(263)),  # 46
    Part.ArcOfCircle(Part.Circle(V(0, 0, 0), V(0, 0, 1), 37.5), math.radians(7), math.radians(83)),  # 47
    Part.ArcOfCircle(Part.Circle(V(39.2, 5, 0), V(0, 0, 1), 2), math.radians(-173), math.radians(-90)),  # 48
    Part.LineSegment(V(39.2, 3, 0), V(41.3, 3, 0)),  # 49
    Part.LineSegment(V(41.3, 3, 0), V(41.3, -3, 0)),  # 50
    Part.LineSegment(V(41.3, -3, 0), V(39.2, -3, 0)),  # 51
    Part.ArcOfCircle(Part.Circle(V(39.2, -5, 0), V(0, 0, 1), 2), math.radians(90), math.radians(173)),  # 52
    Part.ArcOfCircle(Part.Circle(V(0, 0, 0), V(0, 0, 1), 37.5), math.radians(-83), math.radians(-7)),  # 53
    Part.ArcOfCircle(Part.Circle(V(5, -39.2, 0), V(0, 0, 1), 2), math.radians(97), math.radians(180)),  # 54
    Part.LineSegment(V(3, -39.2, 0), V(3, -41.3, 0)),  # 55
], False)
sketch8.addConstraint([
    Sketcher.Constraint("Tangent", 0, 2, 1, 1),
    Sketcher.Constraint("Tangent", 1, 2, 2, 1),
    Sketcher.Constraint("Tangent", 2, 2, 3, 2),
    Sketcher.Constraint("Tangent", 3, 1, 4, 1),
    Sketcher.Constraint("Tangent", 4, 2, 5, 2),
    Sketcher.Constraint("Tangent", 5, 1, 6, 1),
    Sketcher.Constraint("Tangent", 6, 2, 7, 1),
    Sketcher.Constraint("Tangent", 7, 2, 8, 1),
    Sketcher.Constraint("Tangent", 8, 2, 9, 1),
    Sketcher.Constraint("Tangent", 9, 2, 10, 1),
    Sketcher.Constraint("Tangent", 10, 2, 11, 2),
    Sketcher.Constraint("Tangent", 11, 1, 12, 1),
    Sketcher.Constraint("Tangent", 12, 2, 13, 2),
    Sketcher.Constraint("Tangent", 13, 1, 14, 1),
    Sketcher.Constraint("Tangent", 14, 2, 15, 1),
    Sketcher.Constraint("Tangent", 15, 2, 16, 1),
    Sketcher.Constraint("Tangent", 16, 2, 17, 1),
    Sketcher.Constraint("Tangent", 17, 2, 18, 1),
    Sketcher.Constraint("Tangent", 18, 2, 19, 2),
    Sketcher.Constraint("Tangent", 19, 1, 20, 1),
    Sketcher.Constraint("Tangent", 20, 2, 21, 2),
    Sketcher.Constraint("Tangent", 21, 1, 22, 1),
    Sketcher.Constraint("Tangent", 22, 2, 23, 1),
    Sketcher.Constraint("Tangent", 23, 2, 24, 1),
    Sketcher.Constraint("Tangent", 24, 2, 25, 1),
    Sketcher.Constraint("Tangent", 25, 2, 26, 1),
    Sketcher.Constraint("Tangent", 26, 2, 27, 2),
    Sketcher.Constraint("Tangent", 27, 1, 28, 1),
    Sketcher.Constraint("Tangent", 28, 2, 29, 2),
    Sketcher.Constraint("Tangent", 29, 1, 30, 1),
    Sketcher.Constraint("Tangent", 30, 2, 31, 1),
    Sketcher.Constraint("Tangent", 31, 2, 0, 1),
    Sketcher.Constraint("Coincident", 32, 2, 33, 1),
    Sketcher.Constraint("Tangent", 33, 2, 34, 1),
    Sketcher.Constraint("Tangent", 34, 2, 35, 2),
    Sketcher.Constraint("Tangent", 35, 1, 36, 1),
    Sketcher.Constraint("Tangent", 36, 2, 37, 1),
    Sketcher.Constraint("Coincident", 37, 2, 38, 1),
    Sketcher.Constraint("Coincident", 38, 2, 39, 1),
    Sketcher.Constraint("Tangent", 39, 2, 40, 1),
    Sketcher.Constraint("Tangent", 40, 2, 41, 2),
    Sketcher.Constraint("Tangent", 41, 1, 42, 1),
    Sketcher.Constraint("Tangent", 42, 2, 43, 1),
    Sketcher.Constraint("Coincident", 43, 2, 44, 1),
    Sketcher.Constraint("Coincident", 44, 2, 45, 1),
    Sketcher.Constraint("Tangent", 45, 2, 46, 1),
    Sketcher.Constraint("Tangent", 46, 2, 47, 2),
    Sketcher.Constraint("Tangent", 47, 1, 48, 1),
    Sketcher.Constraint("Tangent", 48, 2, 49, 1),
    Sketcher.Constraint("Coincident", 49, 2, 50, 1),
    Sketcher.Constraint("Coincident", 50, 2, 51, 1),
    Sketcher.Constraint("Tangent", 51, 2, 52, 1),
    Sketcher.Constraint("Tangent", 52, 2, 53, 2),
    Sketcher.Constraint("Tangent", 53, 1, 54, 1),
    Sketcher.Constraint("Tangent", 54, 2, 55, 1),
    Sketcher.Constraint("Coincident", 55, 2, 32, 1),
    Sketcher.Constraint("Horizontal", 0),
    Sketcher.Constraint("Vertical", 2),
    Sketcher.Constraint("Horizontal", 6),
    Sketcher.Constraint("Vertical", 8),
    Sketcher.Constraint("Horizontal", 10),
    Sketcher.Constraint("Vertical", 14),
    Sketcher.Constraint("Horizontal", 16),
    Sketcher.Constraint("Vertical", 18),
    Sketcher.Constraint("Horizontal", 22),
    Sketcher.Constraint("Vertical", 24),
    Sketcher.Constraint("Horizontal", 26),
    Sketcher.Constraint("Vertical", 30),
    Sketcher.Constraint("Horizontal", 32),
    Sketcher.Constraint("Vertical", 33),
    Sketcher.Constraint("Horizontal", 37),
    Sketcher.Constraint("Vertical", 38),
    Sketcher.Constraint("Horizontal", 39),
    Sketcher.Constraint("Vertical", 43),
    Sketcher.Constraint("Horizontal", 44),
    Sketcher.Constraint("Vertical", 45),
    Sketcher.Constraint("Horizontal", 49),
    Sketcher.Constraint("Vertical", 50),
    Sketcher.Constraint("Horizontal", 51),
    Sketcher.Constraint("Vertical", 55),
    Sketcher.Constraint("Coincident", 4, 3, -1, 1),
    Sketcher.Constraint("Coincident", 12, 3, -1, 1),
    Sketcher.Constraint("Coincident", 20, 3, -1, 1),
    Sketcher.Constraint("Coincident", 28, 3, -1, 1),
    Sketcher.Constraint("Coincident", 35, 3, -1, 1),
    Sketcher.Constraint("Coincident", 41, 3, -1, 1),
    Sketcher.Constraint("Coincident", 47, 3, -1, 1),
    Sketcher.Constraint("Coincident", 53, 3, -1, 1),
    Sketcher.Constraint("Coincident", 34, 3, 29, 3),
    Sketcher.Constraint("Coincident", 36, 3, 27, 3),
    Sketcher.Constraint("Coincident", 40, 3, 21, 3),
    Sketcher.Constraint("Coincident", 42, 3, 19, 3),
    Sketcher.Constraint("Coincident", 46, 3, 13, 3),
    Sketcher.Constraint("Coincident", 48, 3, 11, 3),
    Sketcher.Constraint("Coincident", 52, 3, 5, 3),
    Sketcher.Constraint("Coincident", 54, 3, 3, 3),
    Sketcher.Constraint("Coincident", 32, 2, 31, 3),
    Sketcher.Constraint("Coincident", 37, 2, 25, 3),
    Sketcher.Constraint("Coincident", 38, 2, 23, 3),
    Sketcher.Constraint("Coincident", 43, 2, 17, 3),
    Sketcher.Constraint("Coincident", 44, 2, 15, 3),
    Sketcher.Constraint("Coincident", 49, 2, 9, 3),
    Sketcher.Constraint("Coincident", 50, 2, 7, 3),
    Sketcher.Constraint("Equal", 1, 3),
    Sketcher.Constraint("Equal", 3, 5),
    Sketcher.Constraint("Equal", 5, 7),
    Sketcher.Constraint("Equal", 9, 11),
    Sketcher.Constraint("Equal", 4, 12),
    Sketcher.Constraint("Equal", 11, 13),
    Sketcher.Constraint("Equal", 17, 19),
    Sketcher.Constraint("Equal", 12, 20),
    Sketcher.Constraint("Equal", 19, 21),
    Sketcher.Constraint("Equal", 25, 27),
    Sketcher.Constraint("Equal", 20, 28),
    Sketcher.Constraint("Equal", 27, 29),
    Sketcher.Constraint("Symmetric", 1, 3, 17, 3, -1, 1),
    Sketcher.Constraint("Symmetric", 7, 3, 23, 3, -1, 1),
    Sketcher.Constraint("Horizontal", 13, 3, 19, 3),
    Sketcher.Constraint("Horizontal", 11, 3, 21, 3),
    Sketcher.Constraint("Horizontal", 7, 3, 25, 3),
    Sketcher.Constraint("Horizontal", 3, 3, 29, 3),
    Sketcher.Constraint("Equal", 51, 2),
    Sketcher.Constraint("Equal", 44, 8),
    Sketcher.Constraint("Radius", 1, Q("1 mm")),
    Sketcher.Constraint("Radius", 4, Q("38.5 mm")),
    Sketcher.Constraint("DistanceX", 0, 1, 0, 2, Q("6 mm")),
    Sketcher.Constraint("DistanceX", 6, 1, 6, 2, Q("2.109378 mm")),
])
pad5 = body.newObject("PartDesign::Pad", "Pad004")
pad5.Profile = sketch8
pad5.Length = 1

doc.recompute()
